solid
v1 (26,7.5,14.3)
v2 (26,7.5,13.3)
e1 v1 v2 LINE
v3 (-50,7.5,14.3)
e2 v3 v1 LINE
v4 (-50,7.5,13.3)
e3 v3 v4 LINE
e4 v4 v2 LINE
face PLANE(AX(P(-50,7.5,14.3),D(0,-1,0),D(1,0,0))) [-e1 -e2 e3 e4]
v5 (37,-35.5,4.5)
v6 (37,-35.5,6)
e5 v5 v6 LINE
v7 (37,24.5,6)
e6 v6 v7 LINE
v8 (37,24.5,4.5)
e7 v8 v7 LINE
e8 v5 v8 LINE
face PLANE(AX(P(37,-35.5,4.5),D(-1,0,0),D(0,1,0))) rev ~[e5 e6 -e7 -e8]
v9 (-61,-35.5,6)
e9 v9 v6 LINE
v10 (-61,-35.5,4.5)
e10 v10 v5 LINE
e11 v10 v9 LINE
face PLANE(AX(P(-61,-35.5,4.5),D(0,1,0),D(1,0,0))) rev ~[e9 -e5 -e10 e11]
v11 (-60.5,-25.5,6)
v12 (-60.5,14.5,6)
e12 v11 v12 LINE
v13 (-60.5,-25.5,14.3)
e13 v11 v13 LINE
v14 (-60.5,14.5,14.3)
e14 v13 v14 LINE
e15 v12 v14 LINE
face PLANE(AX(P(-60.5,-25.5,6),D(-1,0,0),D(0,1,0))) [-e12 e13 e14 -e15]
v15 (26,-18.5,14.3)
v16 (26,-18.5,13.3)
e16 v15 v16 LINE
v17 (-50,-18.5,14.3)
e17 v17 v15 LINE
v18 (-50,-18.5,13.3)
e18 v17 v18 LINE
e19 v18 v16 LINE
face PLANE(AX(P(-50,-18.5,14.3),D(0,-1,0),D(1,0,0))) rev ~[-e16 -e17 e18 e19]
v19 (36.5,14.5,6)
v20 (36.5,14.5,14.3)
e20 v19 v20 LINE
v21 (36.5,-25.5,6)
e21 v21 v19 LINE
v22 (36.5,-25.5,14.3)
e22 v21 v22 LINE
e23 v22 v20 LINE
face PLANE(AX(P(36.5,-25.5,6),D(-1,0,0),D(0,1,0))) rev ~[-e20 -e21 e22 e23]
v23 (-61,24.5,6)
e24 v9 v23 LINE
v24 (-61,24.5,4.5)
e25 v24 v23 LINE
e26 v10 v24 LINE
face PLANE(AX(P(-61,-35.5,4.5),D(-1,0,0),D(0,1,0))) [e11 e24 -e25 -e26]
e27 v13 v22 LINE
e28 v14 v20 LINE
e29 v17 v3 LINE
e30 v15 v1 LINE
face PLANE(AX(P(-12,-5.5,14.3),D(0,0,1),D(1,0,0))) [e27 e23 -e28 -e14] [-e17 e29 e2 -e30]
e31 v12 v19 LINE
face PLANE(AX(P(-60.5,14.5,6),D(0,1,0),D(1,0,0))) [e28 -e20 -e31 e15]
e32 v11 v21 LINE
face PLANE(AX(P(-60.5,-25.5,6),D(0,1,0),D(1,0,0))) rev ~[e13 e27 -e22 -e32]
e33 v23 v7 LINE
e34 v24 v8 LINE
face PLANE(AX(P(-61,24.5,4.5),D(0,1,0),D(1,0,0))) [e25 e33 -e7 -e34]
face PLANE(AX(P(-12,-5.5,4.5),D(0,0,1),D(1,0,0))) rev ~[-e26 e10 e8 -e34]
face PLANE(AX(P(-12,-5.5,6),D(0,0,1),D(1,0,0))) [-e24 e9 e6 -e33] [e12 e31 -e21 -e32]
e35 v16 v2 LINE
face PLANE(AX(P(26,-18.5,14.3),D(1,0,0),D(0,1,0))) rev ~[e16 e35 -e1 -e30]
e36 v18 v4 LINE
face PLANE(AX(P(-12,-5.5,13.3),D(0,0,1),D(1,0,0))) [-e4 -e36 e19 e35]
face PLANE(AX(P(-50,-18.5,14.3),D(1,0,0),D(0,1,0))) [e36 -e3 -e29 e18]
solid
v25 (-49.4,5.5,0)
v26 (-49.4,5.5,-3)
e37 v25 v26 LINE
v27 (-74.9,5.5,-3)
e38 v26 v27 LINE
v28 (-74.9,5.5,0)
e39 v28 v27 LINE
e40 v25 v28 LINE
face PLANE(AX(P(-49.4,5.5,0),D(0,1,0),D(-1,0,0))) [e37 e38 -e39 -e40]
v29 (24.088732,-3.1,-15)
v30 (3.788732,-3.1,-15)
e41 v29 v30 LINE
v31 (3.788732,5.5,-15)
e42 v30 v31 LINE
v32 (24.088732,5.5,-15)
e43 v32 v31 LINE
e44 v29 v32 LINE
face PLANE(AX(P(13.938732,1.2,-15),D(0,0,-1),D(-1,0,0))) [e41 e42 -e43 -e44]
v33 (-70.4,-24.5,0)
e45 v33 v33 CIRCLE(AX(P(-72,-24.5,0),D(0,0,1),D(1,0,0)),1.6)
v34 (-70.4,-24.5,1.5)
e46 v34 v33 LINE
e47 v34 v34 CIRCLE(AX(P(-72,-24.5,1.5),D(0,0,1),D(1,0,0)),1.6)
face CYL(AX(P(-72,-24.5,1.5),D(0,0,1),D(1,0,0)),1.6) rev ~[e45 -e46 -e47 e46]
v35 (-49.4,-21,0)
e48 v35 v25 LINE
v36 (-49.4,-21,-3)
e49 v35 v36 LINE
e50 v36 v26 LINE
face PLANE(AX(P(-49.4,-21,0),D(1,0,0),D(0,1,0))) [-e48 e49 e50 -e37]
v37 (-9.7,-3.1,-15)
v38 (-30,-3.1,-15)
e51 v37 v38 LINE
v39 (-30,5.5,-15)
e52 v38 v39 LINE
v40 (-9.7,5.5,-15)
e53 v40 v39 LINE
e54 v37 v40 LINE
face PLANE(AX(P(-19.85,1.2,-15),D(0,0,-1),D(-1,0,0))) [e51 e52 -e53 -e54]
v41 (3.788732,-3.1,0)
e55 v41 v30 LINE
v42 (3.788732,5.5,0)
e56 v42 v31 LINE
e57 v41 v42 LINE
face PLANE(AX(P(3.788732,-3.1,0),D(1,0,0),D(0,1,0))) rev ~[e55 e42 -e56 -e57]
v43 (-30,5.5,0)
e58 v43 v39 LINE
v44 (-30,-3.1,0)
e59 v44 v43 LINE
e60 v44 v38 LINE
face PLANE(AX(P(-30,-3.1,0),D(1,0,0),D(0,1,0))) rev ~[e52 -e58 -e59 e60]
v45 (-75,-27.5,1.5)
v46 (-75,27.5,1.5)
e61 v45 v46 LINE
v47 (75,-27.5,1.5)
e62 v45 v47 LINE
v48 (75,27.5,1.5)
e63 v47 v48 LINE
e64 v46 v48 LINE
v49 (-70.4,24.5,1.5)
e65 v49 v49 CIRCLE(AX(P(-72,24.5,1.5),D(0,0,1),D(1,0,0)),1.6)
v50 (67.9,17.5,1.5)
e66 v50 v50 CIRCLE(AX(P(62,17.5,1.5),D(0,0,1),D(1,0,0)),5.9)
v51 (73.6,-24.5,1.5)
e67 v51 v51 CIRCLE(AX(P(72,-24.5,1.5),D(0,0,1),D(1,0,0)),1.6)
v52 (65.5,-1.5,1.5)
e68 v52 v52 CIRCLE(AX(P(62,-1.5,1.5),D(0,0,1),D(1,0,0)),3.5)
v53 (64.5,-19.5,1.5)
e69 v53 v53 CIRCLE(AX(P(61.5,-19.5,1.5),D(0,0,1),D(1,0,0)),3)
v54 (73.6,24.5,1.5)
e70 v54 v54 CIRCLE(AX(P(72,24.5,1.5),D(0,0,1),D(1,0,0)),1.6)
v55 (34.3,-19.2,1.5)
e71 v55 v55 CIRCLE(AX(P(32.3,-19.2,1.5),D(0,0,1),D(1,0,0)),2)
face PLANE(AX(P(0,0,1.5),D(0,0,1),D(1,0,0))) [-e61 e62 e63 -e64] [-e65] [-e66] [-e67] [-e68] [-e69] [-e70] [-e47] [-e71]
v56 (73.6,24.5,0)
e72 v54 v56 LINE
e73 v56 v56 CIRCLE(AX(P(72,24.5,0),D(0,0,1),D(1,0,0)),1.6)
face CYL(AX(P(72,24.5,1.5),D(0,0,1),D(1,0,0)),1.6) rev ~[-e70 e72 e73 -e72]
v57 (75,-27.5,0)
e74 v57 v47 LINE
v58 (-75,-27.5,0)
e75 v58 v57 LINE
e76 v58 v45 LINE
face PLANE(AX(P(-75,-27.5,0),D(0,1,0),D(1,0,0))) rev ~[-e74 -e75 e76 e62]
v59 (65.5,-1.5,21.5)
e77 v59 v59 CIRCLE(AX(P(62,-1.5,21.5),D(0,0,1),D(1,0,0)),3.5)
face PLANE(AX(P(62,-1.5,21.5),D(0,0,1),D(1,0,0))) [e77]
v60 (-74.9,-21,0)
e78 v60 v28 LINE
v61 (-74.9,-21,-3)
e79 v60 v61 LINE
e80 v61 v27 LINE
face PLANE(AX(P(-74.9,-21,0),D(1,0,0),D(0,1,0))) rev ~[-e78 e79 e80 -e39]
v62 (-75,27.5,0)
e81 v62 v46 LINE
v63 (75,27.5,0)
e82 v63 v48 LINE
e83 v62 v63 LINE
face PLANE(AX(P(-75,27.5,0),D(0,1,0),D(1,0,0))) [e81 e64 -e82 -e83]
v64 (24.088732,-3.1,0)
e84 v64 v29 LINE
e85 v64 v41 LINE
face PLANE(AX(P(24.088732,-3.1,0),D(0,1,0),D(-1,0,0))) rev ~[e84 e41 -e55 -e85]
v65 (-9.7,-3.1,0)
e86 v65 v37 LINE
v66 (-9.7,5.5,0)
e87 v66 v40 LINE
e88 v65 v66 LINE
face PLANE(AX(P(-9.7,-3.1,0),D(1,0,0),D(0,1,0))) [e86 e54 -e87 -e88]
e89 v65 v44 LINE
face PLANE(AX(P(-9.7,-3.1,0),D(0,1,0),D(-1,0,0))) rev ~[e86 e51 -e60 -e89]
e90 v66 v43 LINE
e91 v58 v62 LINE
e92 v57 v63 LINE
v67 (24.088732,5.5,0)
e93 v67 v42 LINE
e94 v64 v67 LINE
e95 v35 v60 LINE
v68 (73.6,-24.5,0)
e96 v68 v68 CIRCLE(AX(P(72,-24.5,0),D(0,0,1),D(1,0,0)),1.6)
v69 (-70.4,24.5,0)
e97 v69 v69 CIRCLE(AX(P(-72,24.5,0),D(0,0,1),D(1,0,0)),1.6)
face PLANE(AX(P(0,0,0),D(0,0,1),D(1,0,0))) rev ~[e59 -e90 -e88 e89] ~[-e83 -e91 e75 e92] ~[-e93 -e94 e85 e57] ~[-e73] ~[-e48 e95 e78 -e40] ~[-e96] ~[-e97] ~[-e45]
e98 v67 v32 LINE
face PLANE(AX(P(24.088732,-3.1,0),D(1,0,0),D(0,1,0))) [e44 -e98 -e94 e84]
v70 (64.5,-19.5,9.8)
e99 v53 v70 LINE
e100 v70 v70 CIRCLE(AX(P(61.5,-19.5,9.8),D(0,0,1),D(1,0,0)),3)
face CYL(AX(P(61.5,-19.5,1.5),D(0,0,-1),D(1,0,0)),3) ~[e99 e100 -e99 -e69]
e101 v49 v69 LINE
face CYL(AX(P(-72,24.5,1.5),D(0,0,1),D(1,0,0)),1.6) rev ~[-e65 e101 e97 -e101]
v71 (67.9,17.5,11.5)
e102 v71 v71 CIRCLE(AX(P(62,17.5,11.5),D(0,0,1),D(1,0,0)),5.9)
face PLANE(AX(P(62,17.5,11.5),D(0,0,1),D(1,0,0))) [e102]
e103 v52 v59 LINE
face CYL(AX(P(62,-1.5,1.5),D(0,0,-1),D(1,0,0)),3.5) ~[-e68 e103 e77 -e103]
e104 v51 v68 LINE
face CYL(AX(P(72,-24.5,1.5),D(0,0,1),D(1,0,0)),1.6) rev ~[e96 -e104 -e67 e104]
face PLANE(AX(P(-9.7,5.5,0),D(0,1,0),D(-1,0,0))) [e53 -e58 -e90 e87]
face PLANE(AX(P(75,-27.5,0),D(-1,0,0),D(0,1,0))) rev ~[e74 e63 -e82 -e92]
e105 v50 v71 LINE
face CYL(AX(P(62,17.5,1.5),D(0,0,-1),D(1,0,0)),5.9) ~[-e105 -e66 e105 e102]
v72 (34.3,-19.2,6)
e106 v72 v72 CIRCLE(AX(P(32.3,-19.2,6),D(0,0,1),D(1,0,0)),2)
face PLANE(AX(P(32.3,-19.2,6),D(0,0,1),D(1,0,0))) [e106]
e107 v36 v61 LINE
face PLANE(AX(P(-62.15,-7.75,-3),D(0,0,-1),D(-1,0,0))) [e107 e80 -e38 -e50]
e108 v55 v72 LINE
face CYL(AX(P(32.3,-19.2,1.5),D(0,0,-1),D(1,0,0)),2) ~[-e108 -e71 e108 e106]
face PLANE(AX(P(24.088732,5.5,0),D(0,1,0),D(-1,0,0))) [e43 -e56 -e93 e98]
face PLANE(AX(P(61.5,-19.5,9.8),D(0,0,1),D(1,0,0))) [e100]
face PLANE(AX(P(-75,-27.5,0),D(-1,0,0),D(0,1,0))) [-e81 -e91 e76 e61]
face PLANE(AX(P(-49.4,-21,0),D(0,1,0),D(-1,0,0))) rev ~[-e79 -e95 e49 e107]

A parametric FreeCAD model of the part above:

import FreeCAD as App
import Part
import Sketcher
Q = App.Units.Quantity

doc = App.newDocument("Part")
body = doc.addObject("PartDesign::Body", "Body")

sketch1 = body.newObject("Sketcher::SketchObject", "Sketch")
sketch1.AttachmentSupport = (doc.getObject("XY_Plane"), [""])
sketch1.MapMode = "FlatFace"
sketch1.addGeometry([
    Part.LineSegment(App.Vector(-75, 27.5, 0), App.Vector(-75, -27.5, 0)),
    Part.LineSegment(App.Vector(-75, -27.5, 0), App.Vector(75, -27.5, 0)),
    Part.LineSegment(App.Vector(75, -27.5, 0), App.Vector(75, 27.5, 0)),
    Part.LineSegment(App.Vector(75, 27.5, 0), App.Vector(-75, 27.5, 0)),
], False)
sketch1.addConstraint([
    Sketcher.Constraint("Coincident", 0, 2, 1, 1),
    Sketcher.Constraint("Coincident", 1, 2, 2, 1),
    Sketcher.Constraint("Coincident", 2, 2, 3, 1),
    Sketcher.Constraint("Coincident", 3, 2, 0, 1),
    Sketcher.Constraint("Vertical", 0),
    Sketcher.Constraint("Horizontal", 1),
    Sketcher.Constraint("Vertical", 2),
    Sketcher.Constraint("Horizontal", 3),
    Sketcher.Constraint("Symmetric", 0, 2, 2, 2, -1, 1),
    Sketcher.Constraint("DistanceX", 1, 1, 1, 2, Q("150 mm")),
    Sketcher.Constraint("DistanceY", 0, 2, 0, 1, Q("55 mm")),
])
pad1 = body.newObject("PartDesign::Pad", "Pad")
pad1.Profile = sketch1
pad1.Length = 1.5

sketch2 = body.newObject("Sketcher::SketchObject", "Sketch001")
sketch2.AttachmentSupport = (doc.getObject("XY_Plane"), [""])
sketch2.MapMode = "FlatFace"
sketch2.AttachmentOffset = App.Placement(App.Vector(0, 0, 1.5), App.Rotation())
sketch2.addGeometry(Part.Circle(App.Vector(62, -1.5, 0), App.Vector(0, 0, 1), 3.5), False)
sketch2.addConstraint([
    Sketcher.Constraint("Diameter", 0, Q("7 mm")),
    Sketcher.Constraint("DistanceX", -1, 1, 0, 3, Q("62 mm")),
    Sketcher.Constraint("DistanceY", 0, 3, -1, 1, Q("1.5 mm")),
])
pad2 = body.newObject("PartDesign::Pad", "Pad001")
pad2.Profile = sketch2
pad2.Length = 20

sketch3 = body.newObject("Sketcher::SketchObject", "Sketch002")
sketch3.AttachmentSupport = (doc.getObject("XY_Plane"), [""])
sketch3.MapMode = "FlatFace"
sketch3.AttachmentOffset = App.Placement(App.Vector(0, 0, 1.5), App.Rotation())
sketch3.addGeometry(Part.Circle(App.Vector(32.3, -19.2, 0), App.Vector(0, 0, 1), 2), False)
sketch3.addConstraint([
    Sketcher.Constraint("Diameter", 0, Q("4 mm")),
    Sketcher.Constraint("DistanceX", -1, 1, 0, 3, Q("32.3 mm")),
    Sketcher.Constraint("DistanceY", 0, 3, -1, 1, Q("19.2 mm")),
])
pad3 = body.newObject("PartDesign::Pad", "Pad002")
pad3.Profile = sketch3
pad3.Length = 4.5

sketch4 = body.newObject("Sketcher::SketchObject", "Sketch003")
sketch4.AttachmentSupport = (doc.getObject("XY_Plane"), [""])
sketch4.MapMode = "FlatFace"
sketch4.AttachmentOffset = App.Placement(App.Vector(0, 0, 1.5), App.Rotation())
sketch4.addGeometry(Part.Circle(App.Vector(62, 17.5, 0), App.Vector(0, 0, 1), 5.9), False)
sketch4.addConstraint([
    Sketcher.Constraint("Diameter", 0, Q("11.8 mm")),
    Sketcher.Constraint("DistanceX", -1, 1, 0, 3, Q("62 mm")),
    Sketcher.Constraint("DistanceY", -1, 1, 0, 3, Q("17.5 mm")),
])
pad4 = body.newObject("PartDesign::Pad", "Pad003")
pad4.Profile = sketch4
pad4.Length = 10

sketch5 = body.newObject("Sketcher::SketchObject", "Sketch004")
sketch5.AttachmentSupport = (doc.getObject("XY_Plane"), [""])
sketch5.MapMode = "FlatFace"
sketch5.AttachmentOffset = App.Placement(App.Vector(0, 0, 1.5), App.Rotation())
sketch5.addGeometry(Part.Circle(App.Vector(61.5, -19.5, 0), App.Vector(0, 0, 1), 3), False)
sketch5.addConstraint([
    Sketcher.Constraint("Diameter", 0, Q("6 mm")),
    Sketcher.Constraint("DistanceX", -1, 1, 0, 3, Q("61.5 mm")),
    Sketcher.Constraint("DistanceY", 0, 3, -1, 1, Q("19.5 mm")),
])
pad5 = body.newObject("PartDesign::Pad", "Pad004")
pad5.Profile = sketch5
pad5.Length = 8.3

sketch6 = body.newObject("Sketcher::SketchObject", "Sketch005")
sketch6.AttachmentSupport = (doc.getObject("XY_Plane"), [""])
sketch6.MapMode = "FlatFace"
sketch6.addGeometry([
    Part.LineSegment(App.Vector(24.088732, 5.5, 0), App.Vector(24.088732, -3.1, 0)),
    Part.LineSegment(App.Vector(24.088732, -3.1, 0), App.Vector(3.788732, -3.1, 0)),
    Part.LineSegment(App.Vector(3.788732, -3.1, 0), App.Vector(3.788732, 5.5, 0)),
    Part.LineSegment(App.Vector(3.788732, 5.5, 0), App.Vector(24.088732, 5.5, 0)),
    Part.LineSegment(App.Vector(-9.7, 5.5, 0), App.Vector(-9.7, -3.1, 0)),
    Part.LineSegment(App.Vector(-9.7, -3.1, 0), App.Vector(-30, -3.1, 0)),
    Part.LineSegment(App.Vector(-30, -3.1, 0), App.Vector(-30, 5.5, 0)),
    Part.LineSegment(App.Vector(-30, 5.5, 0), App.Vector(-9.7, 5.5, 0)),
], False)
sketch6.addConstraint([
    Sketcher.Constraint("Coincident", 0, 2, 1, 1),
    Sketcher.Constraint("Coincident", 1, 2, 2, 1),
    Sketcher.Constraint("Coincident", 2, 2, 3, 1),
    Sketcher.Constraint("Coincident", 3, 2, 0, 1),
    Sketcher.Constraint("Coincident", 4, 2, 5, 1),
    Sketcher.Constraint("Coincident", 5, 2, 6, 1),
    Sketcher.Constraint("Coincident", 6, 2, 7, 1),
    Sketcher.Constraint("Coincident", 7, 2, 4, 1),
    Sketcher.Constraint("Vertical", 0),
    Sketcher.Constraint("Horizontal", 1),
    Sketcher.Constraint("Vertical", 2),
    Sketcher.Constraint("Horizontal", 3),
    Sketcher.Constraint("Vertical", 4),
    Sketcher.Constraint("Horizontal", 5),
    Sketcher.Constraint("Vertical", 6),
    Sketcher.Constraint("Horizontal", 7),
    Sketcher.Constraint("Horizontal", 1, 2, 4, 2),
    Sketcher.Constraint("Horizontal", 3, 2, 6, 2),
    Sketcher.Constraint("Equal", 3, 5),
    Sketcher.Constraint("DistanceX", 1, 2, 1, 1, Q("20.3 mm")),
    Sketcher.Constraint("DistanceY", 0, 2, 0, 1, Q("8.6 mm")),
    Sketcher.Constraint("DistanceX", 5, 2, -1, 1, Q("30 mm")),
    Sketcher.Constraint("DistanceY", 0, 2, -1, 1, Q("3.1 mm")),
    Sketcher.Constraint("DistanceX", -1, 1, 0, 2, Q("24.088732 mm")),
])
pad6 = body.newObject("PartDesign::Pad", "Pad005")
pad6.Profile = sketch6
pad6.Length = 15
pad6.Reversed = True

sketch7 = body.newObject("Sketcher::SketchObject", "Sketch006")
sketch7.AttachmentSupport = (doc.getObject("XY_Plane"), [""])
sketch7.MapMode = "FlatFace"
sketch7.addGeometry([
    Part.LineSegment(App.Vector(-49.4, 5.5, 0), App.Vector(-49.4, -21, 0)),
    Part.LineSegment(App.Vector(-49.4, -21, 0), App.Vector(-74.9, -21, 0)),
    Part.LineSegment(App.Vector(-74.9, -21, 0), App.Vector(-74.9, 5.5, 0)),
    Part.LineSegment(App.Vector(-74.9, 5.5, 0), App.Vector(-49.4, 5.5, 0)),
], False)
sketch7.addConstraint([
    Sketcher.Constraint("Coincident", 0, 2, 1, 1),
    Sketcher.Constraint("Coincident", 1, 2, 2, 1),
    Sketcher.Constraint("Coincident", 2, 2, 3, 1),
    Sketcher.Constraint("Coincident", 3, 2, 0, 1),
    Sketcher.Constraint("Vertical", 0),
    Sketcher.Constraint("Horizontal", 1),
    Sketcher.Constraint("Vertical", 2),
    Sketcher.Constraint("Horizontal", 3),
    Sketcher.Constraint("DistanceX", 1, 2, 1, 1, Q("25.5 mm")),
    Sketcher.Constraint("DistanceY", 0, 2, 0, 1, Q("26.5 mm")),
    Sketcher.Constraint("DistanceY", 0, 2, -1, 1, Q("21 mm")),
    Sketcher.Constraint("DistanceX", 0, 2, -1, 1, Q("49.4 mm")),
])
pad7 = body.newObject("PartDesign::Pad", "Pad006")
pad7.Profile = sketch7
pad7.Length = 3
pad7.Reversed = True

sketch8 = body.newObject("Sketcher::SketchObject", "Sketch007")
sketch8.AttachmentSupport = (doc.getObject("XY_Plane"), [""])
sketch8.MapMode = "FlatFace"
sketch8.AttachmentOffset = App.Placement(App.Vector(0, 0, 1.5), App.Rotation())
sketch8.addGeometry([
    Part.Circle(App.Vector(-72, 24.5, 0), App.Vector(0, 0, 1), 1.6),
    Part.Circle(App.Vector(-72, -24.5, 0), App.Vector(0, 0, 1), 1.6),
    Part.Circle(App.Vector(72, -24.5, 0), App.Vector(0, 0, 1), 1.6),
    Part.Circle(App.Vector(72, 24.5, 0), App.Vector(0, 0, 1), 1.6),
], False)
sketch8.addConstraint([
    Sketcher.Constraint("Equal", 0, 1),
    Sketcher.Constraint("Equal", 1, 2),
    Sketcher.Constraint("Equal", 2, 3),
    Sketcher.Constraint("Symmetric", 0, 3, 2, 3, -1, 1),
    Sketcher.Constraint("Symmetric", 1, 3, 3, 3, -1, 1),
    Sketcher.Constraint("Symmetric", 1, 3, 2, 3, -2),
    Sketcher.Constraint("Diameter", 0, Q("3.2 mm")),
    Sketcher.Constraint("DistanceX", 0, 3, -1, 1, Q("72 mm")),
    Sketcher.Constraint("DistanceY", 1, 3, 0, 3, Q("49 mm")),
])
pocket1 = body.newObject("PartDesign::Pocket", "Pocket")
pocket1.Profile = sketch8
pocket1.Length = 10
body2 = doc.addObject("PartDesign::Body", "Body001")

sketch9 = body2.newObject("Sketcher::SketchObject", "Sketch008")
sketch9.AttachmentSupport = (doc.getObject("XY_Plane001"), [""])
sketch9.MapMode = "FlatFace"
sketch9.AttachmentOffset = App.Placement(App.Vector(0, 0, 4.5), App.Rotation())
sketch9.addGeometry([
    Part.LineSegment(App.Vector(-61, 24.5, 0), App.Vector(-61, -35.5, 0)),
    Part.LineSegment(App.Vector(-61, -35.5, 0), App.Vector(37, -35.5, 0)),
    Part.LineSegment(App.Vector(37, -35.5, 0), App.Vector(37, 24.5, 0)),
    Part.LineSegment(App.Vector(37, 24.5, 0), App.Vector(-61, 24.5, 0)),
], False)
sketch9.addConstraint([
    Sketcher.Constraint("Coincident", 0, 2, 1, 1),
    Sketcher.Constraint("Coincident", 1, 2, 2, 1),
    Sketcher.Constraint("Coincident", 2, 2, 3, 1),
    Sketcher.Constraint("Coincident", 3, 2, 0, 1),
    Sketcher.Constraint("Vertical", 0),
    Sketcher.Constraint("Horizontal", 1),
    Sketcher.Constraint("Vertical", 2),
    Sketcher.Constraint("Horizontal", 3),
    Sketcher.Constraint("DistanceX", 1, 1, 1, 2, Q("98 mm")),
    Sketcher.Constraint("DistanceY", 0, 2, 0, 1, Q("60 mm")),
    Sketcher.Constraint("DistanceX", 0, 2, -1, 1, Q("61 mm")),
    Sketcher.Constraint("DistanceY", 0, 2, -1, 1, Q("35.5 mm")),
])
pad8 = body2.newObject("PartDesign::Pad", "Pad007")
pad8.Profile = sketch9
pad8.Length = 1.5

sketch10 = body2.newObject("Sketcher::SketchObject", "Sketch009")
sketch10.AttachmentSupport = (doc.getObject("XY_Plane001"), [""])
sketch10.MapMode = "FlatFace"
sketch10.AttachmentOffset = App.Placement(App.Vector(0, 0, 6), App.Rotation())
sketch10.addGeometry([
    Part.LineSegment(App.Vector(-60.5, 14.5, 0), App.Vector(-60.5, -25.5, 0)),
    Part.LineSegment(App.Vector(-60.5, -25.5, 0), App.Vector(36.5, -25.5, 0)),
    Part.LineSegment(App.Vector(36.5, -25.5, 0), App.Vector(36.5, 14.5, 0)),
    Part.LineSegment(App.Vector(36.5, 14.5, 0), App.Vector(-60.5, 14.5, 0)),
], False)
sketch10.addConstraint([
    Sketcher.Constraint("Coincident", 0, 2, 1, 1),
    Sketcher.Constraint("Coincident", 1, 2, 2, 1),
    Sketcher.Constraint("Coincident", 2, 2, 3, 1),
    Sketcher.Constraint("Coincident", 3, 2, 0, 1),
    Sketcher.Constraint("Vertical", 0),
    Sketcher.Constraint("Horizontal", 1),
    Sketcher.Constraint("Vertical", 2),
    Sketcher.Constraint("Horizontal", 3),
    Sketcher.Constraint("DistanceX", 1, 1, 1, 2, Q("97 mm")),
    Sketcher.Constraint("DistanceY", 0, 2, 0, 1, Q("40 mm")),
    Sketcher.Constraint("DistanceX", 0, 2, -1, 1, Q("60.5 mm")),
    Sketcher.Constraint("DistanceY", 0, 2, -1, 1, Q("25.5 mm")),
])
pad9 = body2.newObject("PartDesign::Pad", "Pad008")
pad9.Profile = sketch10
pad9.Length = 8.3

sketch11 = body2.newObject("Sketcher::SketchObject", "Sketch010")
sketch11.AttachmentSupport = (doc.getObject("XY_Plane001"), [""])
sketch11.MapMode = "FlatFace"
sketch11.AttachmentOffset = App.Placement(App.Vector(0, 0, 14.3), App.Rotation())
sketch11.addGeometry([
    Part.LineSegment(App.Vector(-50, 7.5, 0), App.Vector(-50, -18.5, 0)),
    Part.LineSegment(App.Vector(-50, -18.5, 0), App.Vector(26, -18.5, 0)),
    Part.LineSegment(App.Vector(26, -18.5, 0), App.Vector(26, 7.5, 0)),
    Part.LineSegment(App.Vector(26, 7.5, 0), App.Vector(-50, 7.5, 0)),
], False)
sketch11.addConstraint([
    Sketcher.Constraint("Coincident", 0, 2, 1, 1),
    Sketcher.Constraint("Coincident", 1, 2, 2, 1),
    Sketcher.Constraint("Coincident", 2, 2, 3, 1),
    Sketcher.Constraint("Coincident", 3, 2, 0, 1),
    Sketcher.Constraint("Vertical", 0),
    Sketcher.Constraint("Horizontal", 1),
    Sketcher.Constraint("Vertical", 2),
    Sketcher.Constraint("Horizontal", 3),
    Sketcher.Constraint("DistanceX", 1, 1, 1, 2, Q("76 mm")),
    Sketcher.Constraint("DistanceY", 0, 2, 0, 1, Q("26 mm")),
    Sketcher.Constraint("DistanceX", 0, 2, -1, 1, Q("50 mm")),
    Sketcher.Constraint("DistanceY", 0, 2, -1, 1, Q("18.5 mm")),
])
pocket2 = body2.newObject("PartDesign::Pocket", "Pocket001")
pocket2.Profile = sketch11
pocket2.Length = 1

doc.recompute()
